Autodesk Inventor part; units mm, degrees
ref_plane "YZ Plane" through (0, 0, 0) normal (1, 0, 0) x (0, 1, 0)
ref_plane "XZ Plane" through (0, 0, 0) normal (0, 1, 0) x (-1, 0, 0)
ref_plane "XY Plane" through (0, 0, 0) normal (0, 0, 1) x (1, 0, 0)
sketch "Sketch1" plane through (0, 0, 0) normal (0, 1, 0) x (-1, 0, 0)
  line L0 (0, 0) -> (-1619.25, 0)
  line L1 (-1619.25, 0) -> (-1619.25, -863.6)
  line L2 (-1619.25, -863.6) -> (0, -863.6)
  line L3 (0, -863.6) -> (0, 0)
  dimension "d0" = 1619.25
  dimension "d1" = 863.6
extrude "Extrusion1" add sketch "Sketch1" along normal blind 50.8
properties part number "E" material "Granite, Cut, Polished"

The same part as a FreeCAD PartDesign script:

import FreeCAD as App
import Part
import Sketcher
Q = App.Units.Quantity

doc = App.newDocument("Part")
body = doc.addObject("PartDesign::Body", "Body")

# Sketch on XZ plane
sketch1 = doc.addObject("Sketcher::SketchObject", "Sketch")
body.addObject(sketch1)
sketch1.AttachmentSupport = (doc.XZ_Plane, [""])
sketch1.MapMode = "FlatFace"
sketch1.addGeometry(Part.LineSegment(App.Vector(0, -864, 0), App.Vector(0, 0, 0)), False)
sketch1.addGeometry(Part.LineSegment(App.Vector(0, 0, 0), App.Vector(1619, 0, 0)), False)
sketch1.addGeometry(Part.LineSegment(App.Vector(1619, 0, 0), App.Vector(1619, -864, 0)), False)
sketch1.addGeometry(Part.LineSegment(App.Vector(1619, -864, 0), App.Vector(0, -864, 0)), False)
sketch1.addConstraint(Sketcher.Constraint("Coincident", 0, 2, 1, 1))
sketch1.addConstraint(Sketcher.Constraint("Coincident", 1, 2, 2, 1))
sketch1.addConstraint(Sketcher.Constraint("Coincident", 2, 2, 3, 1))
sketch1.addConstraint(Sketcher.Constraint("Coincident", 3, 2, 0, 1))
sketch1.addConstraint(Sketcher.Constraint("Vertical", 0))
sketch1.addConstraint(Sketcher.Constraint("Horizontal", 1))
sketch1.addConstraint(Sketcher.Constraint("Vertical", 2))
sketch1.addConstraint(Sketcher.Constraint("Horizontal", 3))
sketch1.addConstraint(Sketcher.Constraint("Coincident", 0, 2, -1, 1))
sketch1.addConstraint(Sketcher.Constraint("DistanceY", 0, 1, 0, 2, Q("34 in")))
sketch1.addConstraint(Sketcher.Constraint("DistanceX", 1, 1, 1, 2, Q("63.75 in")))
pad1 = doc.addObject("PartDesign::Pad", "Pad")
body.addObject(pad1)
pad1.Profile = sketch1
pad1.Length = Q("2 in")
pad1.Reversed = True

doc.recompute()
